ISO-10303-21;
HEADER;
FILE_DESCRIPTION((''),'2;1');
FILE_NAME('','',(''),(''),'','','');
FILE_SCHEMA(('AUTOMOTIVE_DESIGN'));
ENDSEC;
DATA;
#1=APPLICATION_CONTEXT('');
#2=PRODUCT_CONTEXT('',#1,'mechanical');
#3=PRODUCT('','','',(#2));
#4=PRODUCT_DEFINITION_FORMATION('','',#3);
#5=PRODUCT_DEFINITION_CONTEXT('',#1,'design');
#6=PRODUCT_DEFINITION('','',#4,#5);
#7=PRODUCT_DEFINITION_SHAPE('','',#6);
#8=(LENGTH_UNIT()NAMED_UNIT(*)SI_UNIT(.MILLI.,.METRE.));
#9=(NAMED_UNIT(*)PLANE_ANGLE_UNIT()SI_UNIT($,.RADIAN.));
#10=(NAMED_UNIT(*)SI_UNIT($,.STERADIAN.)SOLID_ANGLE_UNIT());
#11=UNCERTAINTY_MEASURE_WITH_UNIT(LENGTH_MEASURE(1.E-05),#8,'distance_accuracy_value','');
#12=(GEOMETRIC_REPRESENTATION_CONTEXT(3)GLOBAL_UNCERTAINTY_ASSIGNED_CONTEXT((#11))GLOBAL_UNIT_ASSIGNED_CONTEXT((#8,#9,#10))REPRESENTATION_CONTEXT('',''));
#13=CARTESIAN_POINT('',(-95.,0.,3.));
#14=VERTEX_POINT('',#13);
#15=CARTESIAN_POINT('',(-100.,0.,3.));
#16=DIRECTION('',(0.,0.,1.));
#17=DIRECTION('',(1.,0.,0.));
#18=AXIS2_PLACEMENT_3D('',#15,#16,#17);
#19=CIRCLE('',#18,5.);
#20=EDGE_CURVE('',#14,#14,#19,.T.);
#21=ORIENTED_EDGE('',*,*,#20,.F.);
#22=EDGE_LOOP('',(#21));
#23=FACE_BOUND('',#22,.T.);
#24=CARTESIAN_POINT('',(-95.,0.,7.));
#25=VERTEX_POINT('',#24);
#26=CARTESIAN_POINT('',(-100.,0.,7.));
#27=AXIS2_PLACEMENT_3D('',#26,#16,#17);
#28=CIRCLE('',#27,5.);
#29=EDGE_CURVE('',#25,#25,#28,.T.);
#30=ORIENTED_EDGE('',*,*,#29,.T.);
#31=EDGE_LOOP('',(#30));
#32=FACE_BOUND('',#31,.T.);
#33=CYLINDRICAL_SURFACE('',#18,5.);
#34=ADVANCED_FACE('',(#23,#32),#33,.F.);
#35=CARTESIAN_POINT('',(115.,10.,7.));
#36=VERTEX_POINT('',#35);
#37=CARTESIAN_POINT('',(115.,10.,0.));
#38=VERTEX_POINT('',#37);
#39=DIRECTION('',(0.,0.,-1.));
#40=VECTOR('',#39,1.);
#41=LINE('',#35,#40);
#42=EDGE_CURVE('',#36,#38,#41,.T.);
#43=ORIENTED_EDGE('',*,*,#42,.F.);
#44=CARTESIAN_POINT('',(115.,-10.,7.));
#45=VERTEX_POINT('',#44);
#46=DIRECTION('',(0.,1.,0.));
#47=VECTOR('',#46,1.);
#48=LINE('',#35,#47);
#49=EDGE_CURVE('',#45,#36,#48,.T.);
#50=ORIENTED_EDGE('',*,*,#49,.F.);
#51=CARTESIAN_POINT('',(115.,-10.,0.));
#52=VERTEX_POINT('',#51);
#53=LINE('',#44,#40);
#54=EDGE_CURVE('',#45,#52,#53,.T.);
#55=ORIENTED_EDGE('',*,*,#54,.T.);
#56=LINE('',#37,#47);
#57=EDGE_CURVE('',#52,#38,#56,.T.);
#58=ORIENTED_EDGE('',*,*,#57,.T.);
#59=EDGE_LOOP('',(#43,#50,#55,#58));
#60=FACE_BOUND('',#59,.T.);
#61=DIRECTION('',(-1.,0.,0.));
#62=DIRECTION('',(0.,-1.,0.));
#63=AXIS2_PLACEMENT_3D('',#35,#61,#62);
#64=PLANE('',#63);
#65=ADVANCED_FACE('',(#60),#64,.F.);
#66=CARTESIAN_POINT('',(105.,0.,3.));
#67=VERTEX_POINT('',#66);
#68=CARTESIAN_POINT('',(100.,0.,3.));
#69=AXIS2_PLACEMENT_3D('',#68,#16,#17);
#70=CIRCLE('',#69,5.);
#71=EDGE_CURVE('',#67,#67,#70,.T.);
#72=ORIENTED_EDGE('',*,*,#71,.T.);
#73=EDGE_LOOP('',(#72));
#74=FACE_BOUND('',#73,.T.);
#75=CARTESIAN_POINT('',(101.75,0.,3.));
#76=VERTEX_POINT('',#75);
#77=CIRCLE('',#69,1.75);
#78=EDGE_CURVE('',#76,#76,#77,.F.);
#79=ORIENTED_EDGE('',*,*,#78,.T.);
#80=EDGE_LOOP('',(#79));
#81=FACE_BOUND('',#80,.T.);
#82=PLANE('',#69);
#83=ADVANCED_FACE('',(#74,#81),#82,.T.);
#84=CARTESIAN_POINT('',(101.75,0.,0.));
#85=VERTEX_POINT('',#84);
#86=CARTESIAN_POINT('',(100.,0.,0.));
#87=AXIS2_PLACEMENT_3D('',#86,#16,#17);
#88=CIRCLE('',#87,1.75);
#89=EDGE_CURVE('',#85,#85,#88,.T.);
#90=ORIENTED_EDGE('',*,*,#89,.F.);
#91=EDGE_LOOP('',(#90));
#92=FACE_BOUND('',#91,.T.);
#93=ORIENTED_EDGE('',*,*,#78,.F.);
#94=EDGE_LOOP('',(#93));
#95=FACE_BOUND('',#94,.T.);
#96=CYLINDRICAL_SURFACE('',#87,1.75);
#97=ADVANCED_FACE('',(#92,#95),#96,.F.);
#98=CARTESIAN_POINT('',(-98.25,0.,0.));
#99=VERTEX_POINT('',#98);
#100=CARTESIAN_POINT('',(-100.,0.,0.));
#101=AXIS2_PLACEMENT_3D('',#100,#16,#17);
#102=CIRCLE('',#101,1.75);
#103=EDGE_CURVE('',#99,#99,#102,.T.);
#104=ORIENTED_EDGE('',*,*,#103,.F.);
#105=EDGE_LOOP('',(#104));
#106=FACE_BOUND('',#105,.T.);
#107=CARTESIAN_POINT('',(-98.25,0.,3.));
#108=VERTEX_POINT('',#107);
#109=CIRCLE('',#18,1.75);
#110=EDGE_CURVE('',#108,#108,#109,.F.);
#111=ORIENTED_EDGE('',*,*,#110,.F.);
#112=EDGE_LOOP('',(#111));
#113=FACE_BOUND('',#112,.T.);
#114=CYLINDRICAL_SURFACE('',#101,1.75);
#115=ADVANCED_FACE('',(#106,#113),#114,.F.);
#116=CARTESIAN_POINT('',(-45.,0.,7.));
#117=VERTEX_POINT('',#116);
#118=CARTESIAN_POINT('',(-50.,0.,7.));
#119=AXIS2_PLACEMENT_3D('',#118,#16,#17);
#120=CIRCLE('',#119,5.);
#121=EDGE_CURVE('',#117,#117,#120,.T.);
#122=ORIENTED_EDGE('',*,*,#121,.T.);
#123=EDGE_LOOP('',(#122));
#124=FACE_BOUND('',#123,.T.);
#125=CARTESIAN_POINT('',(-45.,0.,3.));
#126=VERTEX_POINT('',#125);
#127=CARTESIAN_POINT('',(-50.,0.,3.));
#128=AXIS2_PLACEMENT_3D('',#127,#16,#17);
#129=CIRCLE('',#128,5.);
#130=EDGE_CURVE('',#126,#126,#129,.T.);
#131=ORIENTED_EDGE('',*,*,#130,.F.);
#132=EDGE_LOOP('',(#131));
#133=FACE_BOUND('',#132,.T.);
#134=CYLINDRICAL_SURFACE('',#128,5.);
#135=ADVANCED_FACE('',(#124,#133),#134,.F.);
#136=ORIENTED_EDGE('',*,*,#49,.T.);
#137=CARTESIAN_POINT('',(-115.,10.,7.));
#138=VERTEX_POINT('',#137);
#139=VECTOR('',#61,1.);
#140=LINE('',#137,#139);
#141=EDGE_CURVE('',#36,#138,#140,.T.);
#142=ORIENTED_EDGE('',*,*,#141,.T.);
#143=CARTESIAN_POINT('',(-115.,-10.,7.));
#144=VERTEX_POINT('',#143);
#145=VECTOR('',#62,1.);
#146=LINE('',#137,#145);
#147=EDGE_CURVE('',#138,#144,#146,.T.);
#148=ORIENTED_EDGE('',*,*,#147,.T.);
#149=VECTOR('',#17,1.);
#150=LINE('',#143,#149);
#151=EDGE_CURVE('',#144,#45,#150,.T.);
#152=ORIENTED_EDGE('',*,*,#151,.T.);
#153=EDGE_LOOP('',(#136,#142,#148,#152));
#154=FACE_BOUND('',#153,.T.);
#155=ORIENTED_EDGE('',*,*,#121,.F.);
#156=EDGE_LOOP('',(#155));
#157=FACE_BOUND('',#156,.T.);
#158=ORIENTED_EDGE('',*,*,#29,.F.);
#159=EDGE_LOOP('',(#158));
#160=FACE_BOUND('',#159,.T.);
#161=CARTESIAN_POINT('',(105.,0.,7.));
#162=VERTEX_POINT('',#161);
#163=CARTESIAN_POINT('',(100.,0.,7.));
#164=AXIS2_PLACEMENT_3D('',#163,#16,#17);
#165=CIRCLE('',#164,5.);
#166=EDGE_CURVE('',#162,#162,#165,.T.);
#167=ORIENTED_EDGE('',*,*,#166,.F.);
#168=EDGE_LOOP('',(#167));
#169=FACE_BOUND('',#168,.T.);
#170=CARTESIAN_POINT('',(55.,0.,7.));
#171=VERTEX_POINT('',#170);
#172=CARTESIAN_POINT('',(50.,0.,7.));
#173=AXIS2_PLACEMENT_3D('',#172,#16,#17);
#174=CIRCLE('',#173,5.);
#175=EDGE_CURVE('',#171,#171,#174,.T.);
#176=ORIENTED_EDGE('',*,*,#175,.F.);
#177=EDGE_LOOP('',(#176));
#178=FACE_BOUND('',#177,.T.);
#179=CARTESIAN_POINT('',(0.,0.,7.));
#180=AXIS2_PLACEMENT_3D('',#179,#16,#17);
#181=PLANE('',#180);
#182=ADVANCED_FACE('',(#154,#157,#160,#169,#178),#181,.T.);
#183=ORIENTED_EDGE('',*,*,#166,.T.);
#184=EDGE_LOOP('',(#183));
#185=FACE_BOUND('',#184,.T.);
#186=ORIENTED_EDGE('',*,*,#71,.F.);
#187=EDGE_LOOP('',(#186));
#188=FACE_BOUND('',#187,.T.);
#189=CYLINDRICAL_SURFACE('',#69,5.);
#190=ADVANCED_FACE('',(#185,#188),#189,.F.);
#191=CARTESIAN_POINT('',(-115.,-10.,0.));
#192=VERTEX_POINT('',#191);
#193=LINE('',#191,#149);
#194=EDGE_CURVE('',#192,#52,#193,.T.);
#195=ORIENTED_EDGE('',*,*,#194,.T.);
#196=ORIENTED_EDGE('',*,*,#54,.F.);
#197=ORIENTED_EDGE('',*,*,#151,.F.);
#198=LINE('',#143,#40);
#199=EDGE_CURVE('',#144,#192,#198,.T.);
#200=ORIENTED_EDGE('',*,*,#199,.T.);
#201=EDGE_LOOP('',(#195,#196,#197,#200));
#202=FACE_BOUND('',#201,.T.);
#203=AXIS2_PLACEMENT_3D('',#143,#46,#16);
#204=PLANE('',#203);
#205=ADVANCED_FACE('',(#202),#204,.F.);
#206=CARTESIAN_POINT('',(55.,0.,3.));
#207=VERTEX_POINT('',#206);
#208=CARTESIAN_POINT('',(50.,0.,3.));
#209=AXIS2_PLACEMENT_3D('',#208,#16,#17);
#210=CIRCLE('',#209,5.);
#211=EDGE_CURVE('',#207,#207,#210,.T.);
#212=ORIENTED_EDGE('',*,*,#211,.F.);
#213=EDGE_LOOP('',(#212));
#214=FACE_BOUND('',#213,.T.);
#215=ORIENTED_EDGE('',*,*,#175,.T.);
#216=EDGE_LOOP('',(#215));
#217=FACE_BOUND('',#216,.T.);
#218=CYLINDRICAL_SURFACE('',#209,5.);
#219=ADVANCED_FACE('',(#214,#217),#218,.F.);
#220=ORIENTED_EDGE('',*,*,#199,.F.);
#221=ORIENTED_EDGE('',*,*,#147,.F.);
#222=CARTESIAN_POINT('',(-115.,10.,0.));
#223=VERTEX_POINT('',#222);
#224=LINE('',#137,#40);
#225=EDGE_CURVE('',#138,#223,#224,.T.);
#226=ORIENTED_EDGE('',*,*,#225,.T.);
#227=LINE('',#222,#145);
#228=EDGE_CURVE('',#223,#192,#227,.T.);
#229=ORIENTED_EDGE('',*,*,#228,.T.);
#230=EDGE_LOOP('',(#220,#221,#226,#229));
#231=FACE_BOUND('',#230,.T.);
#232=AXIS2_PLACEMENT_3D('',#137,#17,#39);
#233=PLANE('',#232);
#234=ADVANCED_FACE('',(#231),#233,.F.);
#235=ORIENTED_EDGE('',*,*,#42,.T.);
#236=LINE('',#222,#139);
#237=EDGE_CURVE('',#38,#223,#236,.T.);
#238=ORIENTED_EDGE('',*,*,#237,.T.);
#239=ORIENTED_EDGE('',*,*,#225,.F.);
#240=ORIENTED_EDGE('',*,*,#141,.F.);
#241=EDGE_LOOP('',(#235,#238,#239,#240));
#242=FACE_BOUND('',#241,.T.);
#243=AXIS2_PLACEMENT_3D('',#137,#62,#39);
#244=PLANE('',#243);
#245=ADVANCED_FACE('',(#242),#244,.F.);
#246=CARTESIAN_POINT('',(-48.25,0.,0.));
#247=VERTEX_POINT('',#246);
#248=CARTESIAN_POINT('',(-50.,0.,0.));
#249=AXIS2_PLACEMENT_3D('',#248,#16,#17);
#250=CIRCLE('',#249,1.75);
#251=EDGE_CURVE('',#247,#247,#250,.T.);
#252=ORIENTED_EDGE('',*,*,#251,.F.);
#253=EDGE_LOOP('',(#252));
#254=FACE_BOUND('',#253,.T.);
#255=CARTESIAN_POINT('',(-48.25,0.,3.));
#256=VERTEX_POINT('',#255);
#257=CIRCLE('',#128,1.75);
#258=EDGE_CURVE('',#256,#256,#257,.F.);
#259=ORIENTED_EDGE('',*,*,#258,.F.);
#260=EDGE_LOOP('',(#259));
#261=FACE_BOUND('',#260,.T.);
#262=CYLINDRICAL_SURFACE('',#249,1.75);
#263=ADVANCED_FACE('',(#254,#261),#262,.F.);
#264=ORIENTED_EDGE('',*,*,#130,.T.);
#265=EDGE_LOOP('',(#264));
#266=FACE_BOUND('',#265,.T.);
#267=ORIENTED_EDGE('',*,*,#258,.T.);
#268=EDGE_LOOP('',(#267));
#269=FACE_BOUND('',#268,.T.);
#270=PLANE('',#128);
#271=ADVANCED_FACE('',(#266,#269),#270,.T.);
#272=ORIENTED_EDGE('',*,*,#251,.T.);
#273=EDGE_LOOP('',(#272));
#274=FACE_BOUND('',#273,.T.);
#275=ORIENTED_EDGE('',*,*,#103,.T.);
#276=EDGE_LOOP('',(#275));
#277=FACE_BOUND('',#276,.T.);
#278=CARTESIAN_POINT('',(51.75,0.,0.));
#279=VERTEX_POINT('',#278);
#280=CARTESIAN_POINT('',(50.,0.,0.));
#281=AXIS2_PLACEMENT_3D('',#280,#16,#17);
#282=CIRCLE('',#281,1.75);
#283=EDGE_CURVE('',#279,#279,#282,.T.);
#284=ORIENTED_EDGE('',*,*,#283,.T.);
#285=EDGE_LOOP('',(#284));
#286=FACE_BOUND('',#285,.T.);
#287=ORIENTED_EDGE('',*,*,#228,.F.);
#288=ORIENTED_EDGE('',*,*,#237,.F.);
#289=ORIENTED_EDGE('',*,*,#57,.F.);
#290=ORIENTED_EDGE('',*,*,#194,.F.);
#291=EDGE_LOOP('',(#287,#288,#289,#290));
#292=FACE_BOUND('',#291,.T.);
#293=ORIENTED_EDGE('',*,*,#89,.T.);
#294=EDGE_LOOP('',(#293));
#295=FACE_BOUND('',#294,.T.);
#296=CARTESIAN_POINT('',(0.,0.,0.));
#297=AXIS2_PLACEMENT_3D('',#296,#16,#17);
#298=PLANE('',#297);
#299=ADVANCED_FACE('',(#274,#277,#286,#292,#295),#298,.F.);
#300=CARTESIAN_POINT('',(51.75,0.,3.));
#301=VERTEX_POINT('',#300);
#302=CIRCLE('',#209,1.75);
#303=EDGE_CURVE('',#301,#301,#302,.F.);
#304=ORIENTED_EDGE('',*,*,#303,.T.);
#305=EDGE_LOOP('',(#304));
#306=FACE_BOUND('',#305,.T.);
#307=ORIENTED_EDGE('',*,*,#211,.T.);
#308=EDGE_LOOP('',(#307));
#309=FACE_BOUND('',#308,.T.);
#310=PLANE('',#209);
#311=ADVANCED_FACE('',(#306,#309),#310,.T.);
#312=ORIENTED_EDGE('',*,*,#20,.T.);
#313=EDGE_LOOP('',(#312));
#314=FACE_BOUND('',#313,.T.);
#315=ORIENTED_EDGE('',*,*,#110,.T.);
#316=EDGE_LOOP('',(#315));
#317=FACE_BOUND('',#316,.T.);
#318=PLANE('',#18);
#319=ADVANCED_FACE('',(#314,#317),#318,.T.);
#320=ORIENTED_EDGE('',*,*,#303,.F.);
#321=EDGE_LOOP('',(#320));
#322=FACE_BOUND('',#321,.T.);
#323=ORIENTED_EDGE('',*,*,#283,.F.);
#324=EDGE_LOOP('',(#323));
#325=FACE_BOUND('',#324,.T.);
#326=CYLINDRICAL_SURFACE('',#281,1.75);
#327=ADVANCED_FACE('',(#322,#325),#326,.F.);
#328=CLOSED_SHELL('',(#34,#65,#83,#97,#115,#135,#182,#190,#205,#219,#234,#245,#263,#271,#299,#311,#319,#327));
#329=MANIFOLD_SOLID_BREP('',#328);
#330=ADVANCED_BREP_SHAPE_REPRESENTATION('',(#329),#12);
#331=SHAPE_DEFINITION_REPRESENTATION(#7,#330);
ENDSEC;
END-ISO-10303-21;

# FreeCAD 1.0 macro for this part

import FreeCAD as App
import Part
import Sketcher

V = App.Vector
Q = App.Units.Quantity


def add_polygon(sketch, points):
    """Adds a closed chain of lines whose ends are joined by coincident constraints."""
    first, n = sketch.GeometryCount, len(points)
    for a, b in zip(points, points[1:] + points[:1]):
        sketch.addGeometry(Part.LineSegment(App.Vector(*a, 0), App.Vector(*b, 0)), False)
    for i in range(n):
        sketch.addConstraint(Sketcher.Constraint("Coincident", first + i, 2, first + (i + 1) % n, 1))

doc = App.newDocument("Part")
body = doc.addObject("PartDesign::Body", "Body")

sketch1 = body.newObject("Sketcher::SketchObject", "Sketch")
sketch1.AttachmentSupport = (doc.getObject("XY_Plane"), [""])
sketch1.MapMode = "FlatFace"
add_polygon(sketch1, [(-115, 10), (-115, -10), (115, -10), (115, 10)])
sketch1.addConstraint([
    Sketcher.Constraint("Vertical", 0),
    Sketcher.Constraint("Horizontal", 1),
    Sketcher.Constraint("Vertical", 2),
    Sketcher.Constraint("Horizontal", 3),
    Sketcher.Constraint("Symmetric", 0, 2, 2, 2, -1, 1),
    Sketcher.Constraint("DistanceX", 1, 1, 1, 2, Q("230 mm")),
    Sketcher.Constraint("DistanceY", 0, 2, 0, 1, Q("20 mm")),
])
pad1 = body.newObject("PartDesign::Pad", "Pad")
pad1.Profile = sketch1
pad1.Length = 7

sketch2 = body.newObject("Sketcher::SketchObject", "Sketch001")
sketch2.AttachmentSupport = (doc.getObject("XY_Plane"), [""])
sketch2.MapMode = "FlatFace"
sketch2.AttachmentOffset = App.Placement(V(0, 0, 7), App.Rotation())
sketch2.addGeometry([
    Part.Circle(V(-100, 0, 0), V(0, 0, 1), 1.8),
    Part.Circle(V(100, 0, 0), V(0, 0, 1), 1.8),
    Part.Circle(V(50, 0, 0), V(0, 0, 1), 1.8),
    Part.Circle(V(-50, 0, 0), V(0, 0, 1), 1.8),
], False)
sketch2.addConstraint([
    Sketcher.Constraint("Equal", 0, 1),
    Sketcher.Constraint("Equal", 1, 2),
    Sketcher.Constraint("Equal", 2, 3),
    Sketcher.Constraint("Symmetric", 0, 3, 1, 3, -1, 1),
    Sketcher.Constraint("Symmetric", 2, 3, 3, 3, -1, 1),
    Sketcher.Constraint("PointOnObject", 0, 3, -1),
    Sketcher.Constraint("PointOnObject", 2, 3, -1),
    Sketcher.Constraint("Diameter", 0, Q("3.5 mm")),
    Sketcher.Constraint("DistanceX", 0, 3, -1, 1, Q("100 mm")),
    Sketcher.Constraint("DistanceX", -1, 1, 2, 3, Q("50 mm")),
])
pocket1 = body.newObject("PartDesign::Pocket", "Pocket")
pocket1.Profile = sketch2
pocket1.Type = "ThroughAll"

sketch3 = body.newObject("Sketcher::SketchObject", "Sketch002")
sketch3.AttachmentSupport = (doc.getObject("XY_Plane"), [""])
sketch3.MapMode = "FlatFace"
sketch3.AttachmentOffset = App.Placement(V(0, 0, 7), App.Rotation())
sketch3.addGeometry([
    Part.Circle(V(-100, 0, 0), V(0, 0, 1), 5),
    Part.Circle(V(-50, 0, 0), V(0, 0, 1), 5),
    Part.Circle(V(50, 0, 0), V(0, 0, 1), 5),
    Part.Circle(V(100, 0, 0), V(0, 0, 1), 5),
], False)
sketch3.addConstraint([
    Sketcher.Constraint("Equal", 0, 1),
    Sketcher.Constraint("Equal", 1, 2),
    Sketcher.Constraint("Equal", 2, 3),
    Sketcher.Constraint("Symmetric", 1, 3, 2, 3, -1, 1),
    Sketcher.Constraint("Symmetric", 0, 3, 3, 3, -1, 1),
    Sketcher.Constraint("PointOnObject", 0, 3, -1),
    Sketcher.Constraint("PointOnObject", 1, 3, -1),
    Sketcher.Constraint("Diameter", 0, Q("10 mm")),
    Sketcher.Constraint("DistanceX", 0, 3, -1, 1, Q("100 mm")),
    Sketcher.Constraint("DistanceX", 1, 3, -1, 1, Q("50 mm")),
])
pocket2 = body.newObject("PartDesign::Pocket", "Pocket001")
pocket2.Profile = sketch3
pocket2.Length = 4

doc.recompute()
